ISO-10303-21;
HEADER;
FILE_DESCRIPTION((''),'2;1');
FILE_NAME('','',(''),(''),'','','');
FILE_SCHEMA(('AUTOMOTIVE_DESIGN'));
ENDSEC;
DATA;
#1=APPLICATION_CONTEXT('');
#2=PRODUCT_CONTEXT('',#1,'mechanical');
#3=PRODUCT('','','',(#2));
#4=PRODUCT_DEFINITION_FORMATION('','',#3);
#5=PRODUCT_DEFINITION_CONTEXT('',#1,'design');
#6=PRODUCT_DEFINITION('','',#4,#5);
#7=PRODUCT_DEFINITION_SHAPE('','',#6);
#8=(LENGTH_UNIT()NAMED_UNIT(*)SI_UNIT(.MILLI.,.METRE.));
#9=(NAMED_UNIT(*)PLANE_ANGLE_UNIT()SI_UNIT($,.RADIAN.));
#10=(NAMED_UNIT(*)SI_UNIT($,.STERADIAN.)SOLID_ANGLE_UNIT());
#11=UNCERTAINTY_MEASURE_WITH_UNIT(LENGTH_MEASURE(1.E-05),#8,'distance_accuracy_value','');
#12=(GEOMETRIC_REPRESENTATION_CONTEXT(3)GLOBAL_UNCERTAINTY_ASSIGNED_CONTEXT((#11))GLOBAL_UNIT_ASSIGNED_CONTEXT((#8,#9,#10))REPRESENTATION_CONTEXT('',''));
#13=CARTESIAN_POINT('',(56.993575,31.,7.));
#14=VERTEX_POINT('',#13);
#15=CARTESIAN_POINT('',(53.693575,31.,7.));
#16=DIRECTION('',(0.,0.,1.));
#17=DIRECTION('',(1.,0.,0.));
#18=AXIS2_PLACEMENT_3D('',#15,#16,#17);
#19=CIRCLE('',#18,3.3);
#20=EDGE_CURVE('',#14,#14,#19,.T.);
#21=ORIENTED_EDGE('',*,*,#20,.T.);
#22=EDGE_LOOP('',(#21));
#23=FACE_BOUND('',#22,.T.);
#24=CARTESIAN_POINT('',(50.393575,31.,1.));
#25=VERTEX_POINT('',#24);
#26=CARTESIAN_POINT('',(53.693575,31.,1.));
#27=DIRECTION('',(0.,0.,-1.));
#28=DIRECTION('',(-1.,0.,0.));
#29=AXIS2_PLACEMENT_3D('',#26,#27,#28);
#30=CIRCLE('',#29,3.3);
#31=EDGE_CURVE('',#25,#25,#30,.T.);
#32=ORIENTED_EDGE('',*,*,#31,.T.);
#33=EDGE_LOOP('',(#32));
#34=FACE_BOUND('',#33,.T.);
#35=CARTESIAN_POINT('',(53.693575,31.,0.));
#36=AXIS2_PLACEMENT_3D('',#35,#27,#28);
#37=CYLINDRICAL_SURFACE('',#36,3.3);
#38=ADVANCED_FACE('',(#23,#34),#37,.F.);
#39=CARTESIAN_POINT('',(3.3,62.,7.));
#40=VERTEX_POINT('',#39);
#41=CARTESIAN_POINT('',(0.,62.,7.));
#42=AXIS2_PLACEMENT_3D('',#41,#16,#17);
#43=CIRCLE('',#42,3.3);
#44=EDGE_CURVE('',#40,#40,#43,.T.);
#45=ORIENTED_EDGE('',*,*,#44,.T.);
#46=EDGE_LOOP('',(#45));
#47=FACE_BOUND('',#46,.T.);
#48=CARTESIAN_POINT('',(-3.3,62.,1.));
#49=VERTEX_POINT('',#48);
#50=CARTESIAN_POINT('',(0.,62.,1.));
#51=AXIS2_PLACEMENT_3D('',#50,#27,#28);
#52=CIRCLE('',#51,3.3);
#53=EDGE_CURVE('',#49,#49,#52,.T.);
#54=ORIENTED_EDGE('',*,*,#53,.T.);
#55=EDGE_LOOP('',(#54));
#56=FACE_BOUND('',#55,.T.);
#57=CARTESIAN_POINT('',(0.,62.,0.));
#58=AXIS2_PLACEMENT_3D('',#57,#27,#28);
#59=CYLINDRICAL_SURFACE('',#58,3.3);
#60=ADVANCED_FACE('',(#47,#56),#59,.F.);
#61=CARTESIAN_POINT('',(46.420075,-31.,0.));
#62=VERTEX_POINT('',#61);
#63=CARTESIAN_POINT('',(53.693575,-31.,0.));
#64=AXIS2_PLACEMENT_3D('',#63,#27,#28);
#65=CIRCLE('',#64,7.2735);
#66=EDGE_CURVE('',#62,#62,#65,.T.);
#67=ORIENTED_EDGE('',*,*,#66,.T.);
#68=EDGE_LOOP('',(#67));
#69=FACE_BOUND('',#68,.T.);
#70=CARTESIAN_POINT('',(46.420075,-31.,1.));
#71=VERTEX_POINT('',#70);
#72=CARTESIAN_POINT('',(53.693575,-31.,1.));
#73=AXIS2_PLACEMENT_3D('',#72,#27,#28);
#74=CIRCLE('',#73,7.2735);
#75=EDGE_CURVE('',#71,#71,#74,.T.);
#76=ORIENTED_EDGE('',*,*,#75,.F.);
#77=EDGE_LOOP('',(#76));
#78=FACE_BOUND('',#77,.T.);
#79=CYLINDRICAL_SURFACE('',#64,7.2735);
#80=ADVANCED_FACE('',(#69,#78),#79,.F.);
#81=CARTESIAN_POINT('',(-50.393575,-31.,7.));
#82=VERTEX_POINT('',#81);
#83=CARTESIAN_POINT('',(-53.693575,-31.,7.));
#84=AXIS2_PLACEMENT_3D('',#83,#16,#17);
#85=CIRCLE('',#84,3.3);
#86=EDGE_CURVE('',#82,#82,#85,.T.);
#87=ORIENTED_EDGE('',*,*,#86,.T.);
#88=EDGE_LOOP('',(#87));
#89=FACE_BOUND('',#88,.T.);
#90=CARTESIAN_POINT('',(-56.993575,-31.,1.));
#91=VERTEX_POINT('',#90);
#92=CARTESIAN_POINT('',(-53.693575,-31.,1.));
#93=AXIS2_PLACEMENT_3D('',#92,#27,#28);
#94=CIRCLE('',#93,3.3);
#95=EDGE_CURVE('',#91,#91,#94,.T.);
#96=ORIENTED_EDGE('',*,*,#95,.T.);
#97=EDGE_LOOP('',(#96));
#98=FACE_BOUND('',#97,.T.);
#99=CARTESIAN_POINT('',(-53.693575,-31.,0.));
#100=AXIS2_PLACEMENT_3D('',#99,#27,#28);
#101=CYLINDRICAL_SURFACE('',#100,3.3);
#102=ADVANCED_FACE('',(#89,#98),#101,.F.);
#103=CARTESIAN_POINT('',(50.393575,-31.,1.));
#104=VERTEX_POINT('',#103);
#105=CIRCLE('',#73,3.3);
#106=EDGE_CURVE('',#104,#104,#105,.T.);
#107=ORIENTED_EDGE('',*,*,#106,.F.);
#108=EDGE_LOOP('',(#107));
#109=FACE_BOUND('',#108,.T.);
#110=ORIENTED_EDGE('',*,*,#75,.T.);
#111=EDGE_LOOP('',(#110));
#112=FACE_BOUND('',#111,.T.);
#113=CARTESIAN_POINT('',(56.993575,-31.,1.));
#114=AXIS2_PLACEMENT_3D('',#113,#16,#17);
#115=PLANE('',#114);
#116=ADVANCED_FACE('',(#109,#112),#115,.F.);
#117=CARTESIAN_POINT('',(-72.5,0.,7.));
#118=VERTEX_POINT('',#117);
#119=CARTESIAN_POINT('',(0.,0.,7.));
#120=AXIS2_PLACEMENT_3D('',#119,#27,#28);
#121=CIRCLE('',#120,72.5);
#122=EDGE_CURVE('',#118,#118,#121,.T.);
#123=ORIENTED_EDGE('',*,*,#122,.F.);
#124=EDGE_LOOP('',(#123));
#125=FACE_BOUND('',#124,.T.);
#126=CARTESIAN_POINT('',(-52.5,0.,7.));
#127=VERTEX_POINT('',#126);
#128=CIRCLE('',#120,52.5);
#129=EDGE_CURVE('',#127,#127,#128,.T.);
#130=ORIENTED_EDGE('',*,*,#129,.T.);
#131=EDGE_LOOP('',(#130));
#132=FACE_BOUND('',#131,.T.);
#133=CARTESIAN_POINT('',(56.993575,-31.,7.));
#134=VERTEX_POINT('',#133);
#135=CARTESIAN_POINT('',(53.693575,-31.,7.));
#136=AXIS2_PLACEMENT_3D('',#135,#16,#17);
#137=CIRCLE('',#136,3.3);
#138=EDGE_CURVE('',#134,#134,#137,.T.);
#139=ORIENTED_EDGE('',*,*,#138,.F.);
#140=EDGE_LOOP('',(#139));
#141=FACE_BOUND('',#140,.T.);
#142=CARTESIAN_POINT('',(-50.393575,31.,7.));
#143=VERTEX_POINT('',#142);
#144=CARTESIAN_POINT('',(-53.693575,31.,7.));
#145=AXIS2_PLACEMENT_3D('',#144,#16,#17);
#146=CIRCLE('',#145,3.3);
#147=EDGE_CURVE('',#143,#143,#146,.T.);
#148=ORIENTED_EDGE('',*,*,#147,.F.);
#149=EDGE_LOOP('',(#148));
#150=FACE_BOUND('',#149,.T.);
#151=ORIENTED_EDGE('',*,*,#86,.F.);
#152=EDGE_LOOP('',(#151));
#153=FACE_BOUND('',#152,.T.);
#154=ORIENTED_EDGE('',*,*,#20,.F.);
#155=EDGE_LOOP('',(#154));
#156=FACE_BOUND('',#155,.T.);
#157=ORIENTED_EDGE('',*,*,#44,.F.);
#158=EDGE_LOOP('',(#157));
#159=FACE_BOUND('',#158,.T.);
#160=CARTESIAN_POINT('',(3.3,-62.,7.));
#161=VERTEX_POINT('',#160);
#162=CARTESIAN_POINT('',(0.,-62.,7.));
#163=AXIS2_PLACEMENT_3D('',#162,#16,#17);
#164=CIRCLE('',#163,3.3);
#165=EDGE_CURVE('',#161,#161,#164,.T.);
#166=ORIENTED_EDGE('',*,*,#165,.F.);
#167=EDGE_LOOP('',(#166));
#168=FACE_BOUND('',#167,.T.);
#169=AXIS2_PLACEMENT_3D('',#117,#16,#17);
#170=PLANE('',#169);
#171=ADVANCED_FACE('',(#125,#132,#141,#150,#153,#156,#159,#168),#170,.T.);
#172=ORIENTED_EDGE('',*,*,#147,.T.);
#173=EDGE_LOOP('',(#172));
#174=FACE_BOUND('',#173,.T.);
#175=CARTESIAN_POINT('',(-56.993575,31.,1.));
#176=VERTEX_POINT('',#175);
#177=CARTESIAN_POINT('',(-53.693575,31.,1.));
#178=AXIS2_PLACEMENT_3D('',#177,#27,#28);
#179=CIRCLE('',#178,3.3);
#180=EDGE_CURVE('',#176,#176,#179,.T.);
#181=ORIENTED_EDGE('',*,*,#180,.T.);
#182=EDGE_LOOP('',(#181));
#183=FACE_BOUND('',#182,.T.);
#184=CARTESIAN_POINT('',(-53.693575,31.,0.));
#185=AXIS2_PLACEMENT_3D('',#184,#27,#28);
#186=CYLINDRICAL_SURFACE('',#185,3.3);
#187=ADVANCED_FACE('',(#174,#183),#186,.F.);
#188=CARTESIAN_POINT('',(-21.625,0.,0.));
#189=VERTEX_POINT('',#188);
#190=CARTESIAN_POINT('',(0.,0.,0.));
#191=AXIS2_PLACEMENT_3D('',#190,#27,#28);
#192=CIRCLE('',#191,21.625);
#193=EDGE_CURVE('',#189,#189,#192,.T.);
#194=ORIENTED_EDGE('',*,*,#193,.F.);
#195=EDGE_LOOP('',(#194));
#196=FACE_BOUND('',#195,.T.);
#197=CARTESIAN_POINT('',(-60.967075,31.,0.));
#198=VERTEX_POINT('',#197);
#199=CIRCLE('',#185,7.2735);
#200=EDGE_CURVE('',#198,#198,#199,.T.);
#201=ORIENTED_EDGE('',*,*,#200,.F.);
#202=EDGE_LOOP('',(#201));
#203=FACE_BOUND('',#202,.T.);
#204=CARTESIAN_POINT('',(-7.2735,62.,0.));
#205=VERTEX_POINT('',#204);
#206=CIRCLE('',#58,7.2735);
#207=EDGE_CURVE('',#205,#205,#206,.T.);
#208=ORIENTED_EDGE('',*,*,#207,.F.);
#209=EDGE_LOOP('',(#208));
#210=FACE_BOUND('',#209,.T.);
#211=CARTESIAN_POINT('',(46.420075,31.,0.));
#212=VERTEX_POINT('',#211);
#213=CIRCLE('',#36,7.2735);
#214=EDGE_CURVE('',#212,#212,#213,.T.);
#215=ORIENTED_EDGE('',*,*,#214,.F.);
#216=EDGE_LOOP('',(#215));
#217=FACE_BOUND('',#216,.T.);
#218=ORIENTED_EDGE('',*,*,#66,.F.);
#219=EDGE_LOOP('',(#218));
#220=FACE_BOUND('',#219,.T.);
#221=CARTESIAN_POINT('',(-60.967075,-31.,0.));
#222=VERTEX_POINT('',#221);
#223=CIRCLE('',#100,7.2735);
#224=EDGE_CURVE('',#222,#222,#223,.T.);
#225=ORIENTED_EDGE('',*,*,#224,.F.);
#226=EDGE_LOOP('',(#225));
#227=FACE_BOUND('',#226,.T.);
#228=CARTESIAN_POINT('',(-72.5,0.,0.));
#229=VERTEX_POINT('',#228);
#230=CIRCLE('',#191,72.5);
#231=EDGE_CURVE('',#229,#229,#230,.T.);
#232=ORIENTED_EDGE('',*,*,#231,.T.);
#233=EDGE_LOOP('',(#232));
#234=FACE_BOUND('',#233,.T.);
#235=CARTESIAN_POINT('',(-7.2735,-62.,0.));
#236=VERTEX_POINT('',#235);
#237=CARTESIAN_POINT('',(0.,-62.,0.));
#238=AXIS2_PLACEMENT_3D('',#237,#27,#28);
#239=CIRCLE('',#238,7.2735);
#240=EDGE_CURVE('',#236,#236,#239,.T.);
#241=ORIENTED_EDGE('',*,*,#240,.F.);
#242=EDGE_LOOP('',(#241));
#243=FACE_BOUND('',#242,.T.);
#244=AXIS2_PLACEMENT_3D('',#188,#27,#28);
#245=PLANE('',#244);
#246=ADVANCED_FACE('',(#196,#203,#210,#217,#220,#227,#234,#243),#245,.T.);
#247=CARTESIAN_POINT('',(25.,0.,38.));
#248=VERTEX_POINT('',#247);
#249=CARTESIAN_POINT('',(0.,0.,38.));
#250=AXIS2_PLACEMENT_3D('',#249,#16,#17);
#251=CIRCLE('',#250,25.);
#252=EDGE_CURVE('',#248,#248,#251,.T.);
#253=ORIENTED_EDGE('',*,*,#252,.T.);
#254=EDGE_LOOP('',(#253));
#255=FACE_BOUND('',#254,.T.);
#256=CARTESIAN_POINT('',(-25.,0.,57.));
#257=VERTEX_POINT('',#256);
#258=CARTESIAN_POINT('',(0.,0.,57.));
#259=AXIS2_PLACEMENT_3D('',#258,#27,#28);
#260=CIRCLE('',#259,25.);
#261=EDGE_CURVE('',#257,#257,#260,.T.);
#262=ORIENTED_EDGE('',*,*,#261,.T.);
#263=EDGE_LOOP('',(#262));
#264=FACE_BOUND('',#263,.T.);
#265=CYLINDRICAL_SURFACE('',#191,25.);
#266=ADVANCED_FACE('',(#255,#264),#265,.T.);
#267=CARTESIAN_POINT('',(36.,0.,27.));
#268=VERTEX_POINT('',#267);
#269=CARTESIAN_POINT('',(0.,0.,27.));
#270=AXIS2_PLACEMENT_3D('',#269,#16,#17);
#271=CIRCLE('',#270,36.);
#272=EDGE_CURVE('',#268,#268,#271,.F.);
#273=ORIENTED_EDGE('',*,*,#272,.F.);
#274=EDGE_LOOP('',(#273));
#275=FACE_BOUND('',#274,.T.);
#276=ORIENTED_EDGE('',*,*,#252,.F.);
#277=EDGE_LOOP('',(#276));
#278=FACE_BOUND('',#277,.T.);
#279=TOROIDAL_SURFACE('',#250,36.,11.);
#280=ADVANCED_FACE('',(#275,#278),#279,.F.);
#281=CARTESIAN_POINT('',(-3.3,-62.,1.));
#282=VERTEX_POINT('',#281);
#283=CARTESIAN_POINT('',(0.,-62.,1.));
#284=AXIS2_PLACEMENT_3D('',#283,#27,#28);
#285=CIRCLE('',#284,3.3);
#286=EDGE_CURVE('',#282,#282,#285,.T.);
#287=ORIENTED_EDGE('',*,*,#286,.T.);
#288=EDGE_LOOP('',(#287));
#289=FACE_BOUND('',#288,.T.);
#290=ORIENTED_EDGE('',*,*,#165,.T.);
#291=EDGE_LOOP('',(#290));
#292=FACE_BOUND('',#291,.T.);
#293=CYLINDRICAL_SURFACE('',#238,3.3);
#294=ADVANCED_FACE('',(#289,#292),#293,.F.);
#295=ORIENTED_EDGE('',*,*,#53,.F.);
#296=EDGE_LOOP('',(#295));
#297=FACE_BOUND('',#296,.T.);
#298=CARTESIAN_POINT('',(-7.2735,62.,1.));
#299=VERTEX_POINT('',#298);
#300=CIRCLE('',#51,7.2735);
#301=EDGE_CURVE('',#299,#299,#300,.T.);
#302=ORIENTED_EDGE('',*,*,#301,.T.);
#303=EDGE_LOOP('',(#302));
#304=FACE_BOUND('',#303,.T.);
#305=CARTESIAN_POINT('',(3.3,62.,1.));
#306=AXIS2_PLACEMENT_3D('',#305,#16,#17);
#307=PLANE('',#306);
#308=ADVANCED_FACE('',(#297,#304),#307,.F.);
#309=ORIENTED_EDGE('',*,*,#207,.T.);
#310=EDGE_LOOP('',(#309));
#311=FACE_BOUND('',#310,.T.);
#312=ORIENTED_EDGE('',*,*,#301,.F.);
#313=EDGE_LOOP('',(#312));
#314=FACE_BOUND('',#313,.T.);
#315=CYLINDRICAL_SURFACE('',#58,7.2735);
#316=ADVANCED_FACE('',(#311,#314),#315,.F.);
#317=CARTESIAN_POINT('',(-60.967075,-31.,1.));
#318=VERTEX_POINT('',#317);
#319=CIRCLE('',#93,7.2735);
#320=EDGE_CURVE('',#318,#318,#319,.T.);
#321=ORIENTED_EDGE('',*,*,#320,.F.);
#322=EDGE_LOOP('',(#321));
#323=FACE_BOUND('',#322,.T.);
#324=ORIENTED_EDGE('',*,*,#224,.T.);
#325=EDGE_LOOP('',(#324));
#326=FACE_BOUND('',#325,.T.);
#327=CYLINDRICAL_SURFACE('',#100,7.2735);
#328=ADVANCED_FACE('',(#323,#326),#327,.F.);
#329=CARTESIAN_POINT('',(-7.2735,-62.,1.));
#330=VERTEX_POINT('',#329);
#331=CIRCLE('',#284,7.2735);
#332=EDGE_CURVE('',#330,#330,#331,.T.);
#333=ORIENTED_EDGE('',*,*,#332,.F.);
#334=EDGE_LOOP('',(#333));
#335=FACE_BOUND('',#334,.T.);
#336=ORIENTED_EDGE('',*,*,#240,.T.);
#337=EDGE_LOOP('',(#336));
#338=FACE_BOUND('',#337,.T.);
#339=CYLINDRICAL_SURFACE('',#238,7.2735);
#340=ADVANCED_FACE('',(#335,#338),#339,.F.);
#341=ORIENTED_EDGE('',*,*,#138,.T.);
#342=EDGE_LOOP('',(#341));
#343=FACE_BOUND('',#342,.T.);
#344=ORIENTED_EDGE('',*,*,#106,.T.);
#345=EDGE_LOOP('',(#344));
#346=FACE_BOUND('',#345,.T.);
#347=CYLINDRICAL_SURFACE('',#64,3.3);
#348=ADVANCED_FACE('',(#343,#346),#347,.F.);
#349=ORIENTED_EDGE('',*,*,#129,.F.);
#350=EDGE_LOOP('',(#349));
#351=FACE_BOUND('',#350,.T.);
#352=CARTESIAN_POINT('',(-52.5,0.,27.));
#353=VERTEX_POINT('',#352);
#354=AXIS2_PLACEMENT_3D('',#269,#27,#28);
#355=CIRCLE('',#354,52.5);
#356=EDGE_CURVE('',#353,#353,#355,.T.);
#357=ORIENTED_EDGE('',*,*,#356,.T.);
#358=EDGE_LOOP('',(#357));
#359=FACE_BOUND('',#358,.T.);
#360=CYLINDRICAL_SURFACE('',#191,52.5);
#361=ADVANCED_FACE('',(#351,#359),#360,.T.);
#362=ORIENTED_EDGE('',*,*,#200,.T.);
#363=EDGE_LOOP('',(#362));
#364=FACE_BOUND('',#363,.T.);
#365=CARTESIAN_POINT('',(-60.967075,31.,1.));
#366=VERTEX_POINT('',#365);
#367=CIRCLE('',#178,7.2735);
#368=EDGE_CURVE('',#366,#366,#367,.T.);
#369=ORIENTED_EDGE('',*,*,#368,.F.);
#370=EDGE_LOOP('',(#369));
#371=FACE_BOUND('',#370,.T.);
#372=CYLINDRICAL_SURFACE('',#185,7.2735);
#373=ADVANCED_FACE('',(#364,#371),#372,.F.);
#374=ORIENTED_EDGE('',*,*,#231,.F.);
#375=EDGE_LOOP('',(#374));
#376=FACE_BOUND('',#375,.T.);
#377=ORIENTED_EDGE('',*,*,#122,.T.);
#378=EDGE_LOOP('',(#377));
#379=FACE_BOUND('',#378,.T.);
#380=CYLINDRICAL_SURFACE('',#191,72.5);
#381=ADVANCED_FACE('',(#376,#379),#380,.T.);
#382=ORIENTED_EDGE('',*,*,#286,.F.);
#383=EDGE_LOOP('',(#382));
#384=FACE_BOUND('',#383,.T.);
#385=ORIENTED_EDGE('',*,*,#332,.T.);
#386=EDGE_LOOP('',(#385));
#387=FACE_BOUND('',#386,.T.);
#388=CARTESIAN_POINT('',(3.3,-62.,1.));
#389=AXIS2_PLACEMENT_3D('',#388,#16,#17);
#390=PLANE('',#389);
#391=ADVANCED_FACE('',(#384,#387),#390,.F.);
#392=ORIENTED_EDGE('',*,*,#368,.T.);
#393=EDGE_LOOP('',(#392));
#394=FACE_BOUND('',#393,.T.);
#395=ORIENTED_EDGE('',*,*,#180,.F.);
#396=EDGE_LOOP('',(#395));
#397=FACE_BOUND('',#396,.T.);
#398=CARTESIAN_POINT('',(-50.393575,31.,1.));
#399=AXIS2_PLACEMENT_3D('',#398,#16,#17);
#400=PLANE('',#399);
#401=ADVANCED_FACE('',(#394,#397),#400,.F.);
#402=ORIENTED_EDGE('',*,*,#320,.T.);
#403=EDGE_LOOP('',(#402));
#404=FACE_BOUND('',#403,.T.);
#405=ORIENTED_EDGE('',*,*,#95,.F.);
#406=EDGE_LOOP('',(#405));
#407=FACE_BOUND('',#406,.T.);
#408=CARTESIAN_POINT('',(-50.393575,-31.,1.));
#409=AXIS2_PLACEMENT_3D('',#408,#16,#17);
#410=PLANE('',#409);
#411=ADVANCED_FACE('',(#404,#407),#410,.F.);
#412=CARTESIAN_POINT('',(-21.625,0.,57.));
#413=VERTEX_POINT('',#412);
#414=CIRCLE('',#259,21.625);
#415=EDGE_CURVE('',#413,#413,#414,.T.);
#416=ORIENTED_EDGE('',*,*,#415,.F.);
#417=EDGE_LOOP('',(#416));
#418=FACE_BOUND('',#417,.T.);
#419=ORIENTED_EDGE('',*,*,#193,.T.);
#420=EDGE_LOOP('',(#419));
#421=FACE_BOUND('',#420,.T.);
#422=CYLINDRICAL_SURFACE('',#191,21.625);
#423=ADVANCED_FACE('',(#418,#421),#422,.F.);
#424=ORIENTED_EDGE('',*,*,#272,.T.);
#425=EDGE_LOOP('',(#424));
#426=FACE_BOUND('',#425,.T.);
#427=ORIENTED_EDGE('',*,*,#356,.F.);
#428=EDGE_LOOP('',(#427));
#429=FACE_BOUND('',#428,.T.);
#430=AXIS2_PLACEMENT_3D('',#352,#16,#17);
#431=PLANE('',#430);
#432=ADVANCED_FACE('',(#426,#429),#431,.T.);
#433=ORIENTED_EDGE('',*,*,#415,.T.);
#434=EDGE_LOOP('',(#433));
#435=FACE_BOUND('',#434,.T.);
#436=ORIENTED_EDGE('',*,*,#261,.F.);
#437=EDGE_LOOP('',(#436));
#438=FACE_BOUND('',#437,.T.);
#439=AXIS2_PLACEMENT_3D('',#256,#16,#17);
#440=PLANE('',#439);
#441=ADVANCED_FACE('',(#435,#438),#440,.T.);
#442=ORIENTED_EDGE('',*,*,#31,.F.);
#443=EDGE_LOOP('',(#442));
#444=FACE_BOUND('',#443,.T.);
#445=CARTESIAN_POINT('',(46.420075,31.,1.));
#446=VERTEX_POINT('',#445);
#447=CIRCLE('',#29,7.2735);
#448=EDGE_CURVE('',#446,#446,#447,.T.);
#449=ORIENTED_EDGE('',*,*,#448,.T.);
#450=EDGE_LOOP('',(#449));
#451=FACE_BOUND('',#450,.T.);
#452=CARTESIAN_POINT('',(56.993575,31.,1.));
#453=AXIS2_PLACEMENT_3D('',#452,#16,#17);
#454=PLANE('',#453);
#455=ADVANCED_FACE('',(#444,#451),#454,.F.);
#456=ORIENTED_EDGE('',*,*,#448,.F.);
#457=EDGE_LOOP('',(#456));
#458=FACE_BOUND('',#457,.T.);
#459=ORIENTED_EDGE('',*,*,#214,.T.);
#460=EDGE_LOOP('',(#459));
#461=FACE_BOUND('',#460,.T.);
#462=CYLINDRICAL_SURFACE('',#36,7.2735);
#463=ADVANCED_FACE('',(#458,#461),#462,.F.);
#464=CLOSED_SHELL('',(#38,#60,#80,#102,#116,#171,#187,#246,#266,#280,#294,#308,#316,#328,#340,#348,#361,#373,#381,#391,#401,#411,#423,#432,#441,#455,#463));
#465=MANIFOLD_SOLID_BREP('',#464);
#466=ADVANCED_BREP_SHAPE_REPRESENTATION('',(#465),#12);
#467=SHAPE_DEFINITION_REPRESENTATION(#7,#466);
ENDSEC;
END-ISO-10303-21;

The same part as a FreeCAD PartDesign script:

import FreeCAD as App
import Part
import Sketcher
Q = App.Units.Quantity


def edges_at(feature, points):
    """Names of the edges that pass closest to the given points."""
    edges = feature.Shape.Edges
    near = lambda p: min(range(len(edges)), key=lambda i: edges[i].distToShape(Part.Vertex(*p))[0])
    return sorted({f"Edge{near(p) + 1}" for p in points})


def add_polygon(sketch, points):
    """Adds a closed chain of lines whose ends are joined by coincident constraints."""
    first, n = sketch.GeometryCount, len(points)
    for a, b in zip(points, points[1:] + points[:1]):
        sketch.addGeometry(Part.LineSegment(App.Vector(*a, 0), App.Vector(*b, 0)), False)
    for i in range(n):
        sketch.addConstraint(Sketcher.Constraint("Coincident", first + i, 2, first + (i + 1) % n, 1))

doc = App.newDocument("Part")
body = doc.addObject("PartDesign::Body", "Body")

sketch1 = doc.addObject("Sketcher::SketchObject", "Sketch")
body.addObject(sketch1)
sketch1.AttachmentSupport = (doc.XZ_Plane, [""])
sketch1.MapMode = "FlatFace"
add_polygon(sketch1, [(-72.5, 0), (-72.5, 7), (-52.5, 7), (-52.5, 27), (-25, 27), (-25, 57), (-21.625, 57), (-21.625, 0)])
sketch1.addConstraint([
    Sketcher.Constraint("Vertical", 0),
    Sketcher.Constraint("Horizontal", 1),
    Sketcher.Constraint("Vertical", 2),
    Sketcher.Constraint("Horizontal", 3),
    Sketcher.Constraint("Vertical", 4),
    Sketcher.Constraint("Horizontal", 5),
    Sketcher.Constraint("Vertical", 6),
    Sketcher.Constraint("Horizontal", 7),
    Sketcher.Constraint("PointOnObject", 6, 2, -1),
    Sketcher.Constraint("Equal", 1, 2),
    Sketcher.Constraint("DistanceX", 1, 1, 1, 2, Q("20 mm")),
    Sketcher.Constraint("DistanceY", 0, 1, 0, 2, Q("7 mm")),
    Sketcher.Constraint("DistanceY", 4, 1, 4, 2, Q("30 mm")),
    Sketcher.Constraint("DistanceX", 3, 1, 3, 2, Q("27.5 mm")),
    Sketcher.Constraint("DistanceX", 3, 2, -1, 1, Q("25 mm")),
    Sketcher.Constraint("DistanceX", 5, 1, 5, 2, Q("3.375 mm")),
])
revolution = doc.addObject("PartDesign::Revolution", "Revolution")
body.addObject(revolution)
revolution.Profile = sketch1
revolution.ReferenceAxis = (sketch1, ["V_Axis"])
revolution.Angle = 360
doc.recompute()

fillet = doc.addObject("PartDesign::Fillet", "Fillet")
body.addObject(fillet)
fillet.Base = (revolution, edges_at(revolution, [(25, 0, 27)]))
fillet.Radius = 11

sketch2 = doc.addObject("Sketcher::SketchObject", "Sketch001")
body.addObject(sketch2)
sketch2.AttachmentSupport = (doc.XY_Plane, [""])
sketch2.MapMode = "FlatFace"
sketch2.addGeometry(Part.Circle(App.Vector(0, 62, 0), App.Vector(0, 0, 1), 3.3), False)
sketch2.addConstraint([
    Sketcher.Constraint("PointOnObject", 0, 3, -2),
    Sketcher.Constraint("Diameter", 0, Q("6.6 mm")),
    Sketcher.Constraint("DistanceY", -1, 1, 0, 3, Q("62 mm")),
])
doc.recompute()
hole = doc.addObject("PartDesign::Hole", "Hole")
body.addObject(hole)
hole.Profile = sketch2
hole.ThreadType = "None"
hole.Diameter = 6.6
hole.DepthType = "ThroughAll"
hole.HoleCutType = "Counterbore"
hole.HoleCutDiameter = 14.547
hole.HoleCutDepth = 1
hole.Reversed = True
doc.recompute()

polarpattern = doc.addObject("PartDesign::PolarPattern", "PolarPattern")
body.addObject(polarpattern)
polarpattern.Originals = [hole]
polarpattern.Axis = (doc.Z_Axis, [""])
polarpattern.Angle = 360
polarpattern.Occurrences = 6
body.Tip = polarpattern

doc.recompute()
